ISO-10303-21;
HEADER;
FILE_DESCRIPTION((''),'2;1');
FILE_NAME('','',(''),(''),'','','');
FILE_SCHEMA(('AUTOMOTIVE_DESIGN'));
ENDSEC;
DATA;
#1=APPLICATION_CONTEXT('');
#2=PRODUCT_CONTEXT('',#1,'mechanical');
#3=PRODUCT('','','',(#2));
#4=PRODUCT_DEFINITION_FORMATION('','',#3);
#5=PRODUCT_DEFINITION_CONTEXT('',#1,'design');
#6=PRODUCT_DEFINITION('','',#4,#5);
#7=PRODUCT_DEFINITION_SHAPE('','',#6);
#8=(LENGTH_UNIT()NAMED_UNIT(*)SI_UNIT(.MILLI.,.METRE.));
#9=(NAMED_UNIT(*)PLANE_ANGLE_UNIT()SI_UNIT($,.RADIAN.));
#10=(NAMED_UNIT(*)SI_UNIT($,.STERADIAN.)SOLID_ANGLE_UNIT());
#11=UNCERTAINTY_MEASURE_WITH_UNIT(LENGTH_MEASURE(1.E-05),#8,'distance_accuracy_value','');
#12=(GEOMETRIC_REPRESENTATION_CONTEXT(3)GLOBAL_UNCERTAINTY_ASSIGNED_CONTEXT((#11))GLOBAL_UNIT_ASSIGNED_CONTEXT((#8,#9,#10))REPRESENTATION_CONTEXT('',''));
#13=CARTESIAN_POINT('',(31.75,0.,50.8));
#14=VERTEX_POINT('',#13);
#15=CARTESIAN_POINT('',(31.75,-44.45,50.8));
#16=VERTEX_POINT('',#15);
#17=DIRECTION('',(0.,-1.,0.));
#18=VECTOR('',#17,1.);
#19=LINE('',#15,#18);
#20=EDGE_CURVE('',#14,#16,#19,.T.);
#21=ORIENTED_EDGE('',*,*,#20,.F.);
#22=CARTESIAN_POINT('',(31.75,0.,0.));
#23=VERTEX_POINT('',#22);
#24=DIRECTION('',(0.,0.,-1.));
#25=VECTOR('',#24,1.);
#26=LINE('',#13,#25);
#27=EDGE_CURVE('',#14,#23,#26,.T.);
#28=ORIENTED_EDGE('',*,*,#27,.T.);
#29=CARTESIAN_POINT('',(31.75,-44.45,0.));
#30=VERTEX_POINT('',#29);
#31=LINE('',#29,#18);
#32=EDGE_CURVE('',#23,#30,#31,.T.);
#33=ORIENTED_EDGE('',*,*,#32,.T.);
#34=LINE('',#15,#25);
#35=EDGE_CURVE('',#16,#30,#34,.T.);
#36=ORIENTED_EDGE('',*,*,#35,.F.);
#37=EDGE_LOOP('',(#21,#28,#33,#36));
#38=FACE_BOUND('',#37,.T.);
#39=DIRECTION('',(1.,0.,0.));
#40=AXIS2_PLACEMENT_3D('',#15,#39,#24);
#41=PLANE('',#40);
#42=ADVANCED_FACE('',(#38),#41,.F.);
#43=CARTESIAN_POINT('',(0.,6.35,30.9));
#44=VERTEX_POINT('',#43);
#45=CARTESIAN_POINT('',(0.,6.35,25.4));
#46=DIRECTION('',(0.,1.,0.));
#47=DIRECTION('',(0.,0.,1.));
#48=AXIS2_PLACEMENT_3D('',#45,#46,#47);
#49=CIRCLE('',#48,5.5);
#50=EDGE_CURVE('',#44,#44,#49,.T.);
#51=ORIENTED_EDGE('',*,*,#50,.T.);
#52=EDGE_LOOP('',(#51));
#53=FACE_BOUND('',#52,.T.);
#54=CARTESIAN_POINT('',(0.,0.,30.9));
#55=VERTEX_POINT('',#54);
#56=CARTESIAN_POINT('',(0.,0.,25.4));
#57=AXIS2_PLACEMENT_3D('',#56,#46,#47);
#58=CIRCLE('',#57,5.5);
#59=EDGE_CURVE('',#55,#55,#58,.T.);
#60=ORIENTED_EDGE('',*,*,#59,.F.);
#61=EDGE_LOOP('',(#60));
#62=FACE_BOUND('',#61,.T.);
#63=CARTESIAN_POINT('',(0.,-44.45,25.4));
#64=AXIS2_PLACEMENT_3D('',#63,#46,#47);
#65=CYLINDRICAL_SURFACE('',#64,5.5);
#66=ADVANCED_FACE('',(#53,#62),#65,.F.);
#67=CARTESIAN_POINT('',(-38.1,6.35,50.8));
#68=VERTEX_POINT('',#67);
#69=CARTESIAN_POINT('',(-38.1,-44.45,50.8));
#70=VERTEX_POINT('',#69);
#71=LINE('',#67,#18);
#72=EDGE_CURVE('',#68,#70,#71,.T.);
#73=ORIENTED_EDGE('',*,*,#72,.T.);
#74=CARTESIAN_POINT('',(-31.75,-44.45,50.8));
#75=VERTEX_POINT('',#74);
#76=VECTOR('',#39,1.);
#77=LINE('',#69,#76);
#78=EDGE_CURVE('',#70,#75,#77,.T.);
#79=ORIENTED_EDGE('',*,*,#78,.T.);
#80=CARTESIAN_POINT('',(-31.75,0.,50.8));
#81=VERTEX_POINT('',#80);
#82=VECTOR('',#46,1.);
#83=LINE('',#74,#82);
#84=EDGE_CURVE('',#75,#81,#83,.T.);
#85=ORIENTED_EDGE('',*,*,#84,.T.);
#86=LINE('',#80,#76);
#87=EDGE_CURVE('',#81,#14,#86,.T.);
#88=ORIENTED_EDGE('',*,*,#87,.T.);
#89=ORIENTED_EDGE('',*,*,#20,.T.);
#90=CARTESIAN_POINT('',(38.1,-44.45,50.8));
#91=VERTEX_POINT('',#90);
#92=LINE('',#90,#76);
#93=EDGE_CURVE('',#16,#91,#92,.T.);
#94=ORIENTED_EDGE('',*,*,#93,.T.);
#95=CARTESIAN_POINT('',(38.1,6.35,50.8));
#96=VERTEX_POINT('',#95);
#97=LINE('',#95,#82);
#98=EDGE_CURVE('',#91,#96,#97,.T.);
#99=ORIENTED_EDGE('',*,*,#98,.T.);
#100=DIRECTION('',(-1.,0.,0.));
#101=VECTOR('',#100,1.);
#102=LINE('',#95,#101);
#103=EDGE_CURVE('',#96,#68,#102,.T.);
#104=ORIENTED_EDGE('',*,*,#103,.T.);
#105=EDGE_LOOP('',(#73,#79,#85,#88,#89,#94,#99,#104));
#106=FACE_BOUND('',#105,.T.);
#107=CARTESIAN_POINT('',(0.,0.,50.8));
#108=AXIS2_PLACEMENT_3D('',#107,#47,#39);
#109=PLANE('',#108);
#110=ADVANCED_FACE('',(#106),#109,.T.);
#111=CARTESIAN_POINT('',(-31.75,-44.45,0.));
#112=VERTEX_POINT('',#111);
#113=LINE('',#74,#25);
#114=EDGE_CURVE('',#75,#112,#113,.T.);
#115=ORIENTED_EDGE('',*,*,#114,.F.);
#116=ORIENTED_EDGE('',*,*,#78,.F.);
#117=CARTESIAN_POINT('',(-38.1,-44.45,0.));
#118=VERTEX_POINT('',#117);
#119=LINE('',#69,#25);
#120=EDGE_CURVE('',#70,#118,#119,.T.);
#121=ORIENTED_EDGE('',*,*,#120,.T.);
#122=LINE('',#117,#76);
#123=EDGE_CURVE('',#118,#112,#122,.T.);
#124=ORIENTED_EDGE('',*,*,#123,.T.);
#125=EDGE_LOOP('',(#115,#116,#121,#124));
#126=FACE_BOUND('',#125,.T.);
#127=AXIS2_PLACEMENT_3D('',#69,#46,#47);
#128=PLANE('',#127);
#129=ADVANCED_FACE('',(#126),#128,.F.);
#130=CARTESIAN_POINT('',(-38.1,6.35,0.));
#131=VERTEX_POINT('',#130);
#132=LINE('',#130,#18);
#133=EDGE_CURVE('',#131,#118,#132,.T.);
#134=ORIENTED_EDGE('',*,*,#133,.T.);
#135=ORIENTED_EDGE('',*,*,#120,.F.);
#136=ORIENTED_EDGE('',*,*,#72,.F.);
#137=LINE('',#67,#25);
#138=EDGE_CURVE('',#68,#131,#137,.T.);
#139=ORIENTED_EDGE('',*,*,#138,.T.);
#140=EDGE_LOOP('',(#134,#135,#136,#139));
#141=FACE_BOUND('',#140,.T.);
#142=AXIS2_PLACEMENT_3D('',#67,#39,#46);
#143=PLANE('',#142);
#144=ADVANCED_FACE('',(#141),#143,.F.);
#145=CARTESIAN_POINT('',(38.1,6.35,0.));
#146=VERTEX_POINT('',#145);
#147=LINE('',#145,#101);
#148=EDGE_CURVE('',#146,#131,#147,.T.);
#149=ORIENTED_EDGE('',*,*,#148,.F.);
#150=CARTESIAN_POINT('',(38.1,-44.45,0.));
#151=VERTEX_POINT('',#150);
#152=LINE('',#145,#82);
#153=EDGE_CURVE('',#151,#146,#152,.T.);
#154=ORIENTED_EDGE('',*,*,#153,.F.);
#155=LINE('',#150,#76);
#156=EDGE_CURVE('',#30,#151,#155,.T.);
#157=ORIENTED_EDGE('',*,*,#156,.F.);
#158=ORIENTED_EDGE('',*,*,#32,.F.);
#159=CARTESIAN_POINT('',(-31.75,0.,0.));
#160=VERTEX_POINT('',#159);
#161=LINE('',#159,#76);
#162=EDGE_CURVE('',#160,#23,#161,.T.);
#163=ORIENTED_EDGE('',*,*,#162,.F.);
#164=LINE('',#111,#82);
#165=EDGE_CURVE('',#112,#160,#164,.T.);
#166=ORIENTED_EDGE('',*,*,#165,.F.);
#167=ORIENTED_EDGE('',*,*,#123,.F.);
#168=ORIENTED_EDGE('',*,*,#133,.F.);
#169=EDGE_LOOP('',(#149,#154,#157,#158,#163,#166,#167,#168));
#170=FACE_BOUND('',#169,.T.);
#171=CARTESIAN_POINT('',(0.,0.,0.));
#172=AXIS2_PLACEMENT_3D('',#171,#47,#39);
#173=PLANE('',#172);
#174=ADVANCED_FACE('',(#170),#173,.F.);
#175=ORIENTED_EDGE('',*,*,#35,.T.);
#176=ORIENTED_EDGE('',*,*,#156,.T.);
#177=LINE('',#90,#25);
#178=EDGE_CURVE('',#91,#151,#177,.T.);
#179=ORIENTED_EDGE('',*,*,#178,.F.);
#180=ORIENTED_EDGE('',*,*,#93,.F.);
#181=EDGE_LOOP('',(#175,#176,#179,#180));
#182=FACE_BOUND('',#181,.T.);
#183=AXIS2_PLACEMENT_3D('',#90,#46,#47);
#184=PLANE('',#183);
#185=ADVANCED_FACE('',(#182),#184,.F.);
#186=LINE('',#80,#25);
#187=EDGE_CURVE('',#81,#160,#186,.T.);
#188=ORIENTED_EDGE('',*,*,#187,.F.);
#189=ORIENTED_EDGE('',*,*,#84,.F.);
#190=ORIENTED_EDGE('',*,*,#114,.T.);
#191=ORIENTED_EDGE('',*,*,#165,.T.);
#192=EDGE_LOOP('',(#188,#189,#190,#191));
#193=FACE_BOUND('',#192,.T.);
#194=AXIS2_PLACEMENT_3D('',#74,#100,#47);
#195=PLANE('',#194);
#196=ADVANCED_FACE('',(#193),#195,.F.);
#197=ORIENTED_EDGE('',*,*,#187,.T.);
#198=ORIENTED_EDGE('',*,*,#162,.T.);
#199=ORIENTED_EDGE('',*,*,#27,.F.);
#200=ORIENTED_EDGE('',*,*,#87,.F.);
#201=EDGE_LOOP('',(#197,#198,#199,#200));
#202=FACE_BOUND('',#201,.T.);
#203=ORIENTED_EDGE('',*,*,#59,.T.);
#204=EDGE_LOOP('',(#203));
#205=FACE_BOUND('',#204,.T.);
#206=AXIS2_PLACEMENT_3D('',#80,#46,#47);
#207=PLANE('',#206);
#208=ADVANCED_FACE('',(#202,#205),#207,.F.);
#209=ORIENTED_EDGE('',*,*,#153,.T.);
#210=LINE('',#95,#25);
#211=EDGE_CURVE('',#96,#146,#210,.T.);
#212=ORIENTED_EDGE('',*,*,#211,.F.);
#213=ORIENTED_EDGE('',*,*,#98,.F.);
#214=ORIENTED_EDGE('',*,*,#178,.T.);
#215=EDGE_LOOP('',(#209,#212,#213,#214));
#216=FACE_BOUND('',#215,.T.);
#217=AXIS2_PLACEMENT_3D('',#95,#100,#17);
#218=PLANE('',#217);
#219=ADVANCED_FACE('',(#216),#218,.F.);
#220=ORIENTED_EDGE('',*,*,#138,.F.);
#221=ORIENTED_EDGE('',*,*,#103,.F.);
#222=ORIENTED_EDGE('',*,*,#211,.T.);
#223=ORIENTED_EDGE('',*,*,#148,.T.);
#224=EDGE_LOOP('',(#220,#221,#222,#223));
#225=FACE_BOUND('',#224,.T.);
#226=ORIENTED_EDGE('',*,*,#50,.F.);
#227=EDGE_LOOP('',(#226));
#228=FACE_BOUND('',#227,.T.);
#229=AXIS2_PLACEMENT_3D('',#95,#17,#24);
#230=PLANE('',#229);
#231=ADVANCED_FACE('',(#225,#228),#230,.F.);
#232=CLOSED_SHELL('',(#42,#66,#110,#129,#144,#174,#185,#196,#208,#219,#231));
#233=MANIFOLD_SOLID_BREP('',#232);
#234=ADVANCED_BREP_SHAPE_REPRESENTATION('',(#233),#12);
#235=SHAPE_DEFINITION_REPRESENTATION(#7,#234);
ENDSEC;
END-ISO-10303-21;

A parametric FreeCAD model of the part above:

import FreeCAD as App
import Part
import Sketcher

V = App.Vector
Q = App.Units.Quantity


def add_polygon(sketch, points):
    """Adds a closed chain of lines whose ends are joined by coincident constraints."""
    first, n = sketch.GeometryCount, len(points)
    for a, b in zip(points, points[1:] + points[:1]):
        sketch.addGeometry(Part.LineSegment(App.Vector(*a, 0), App.Vector(*b, 0)), False)
    for i in range(n):
        sketch.addConstraint(Sketcher.Constraint("Coincident", first + i, 2, first + (i + 1) % n, 1))

doc = App.newDocument("Part")
params = doc.addObject("Spreadsheet::Sheet", "Params")
for row, (alias, value) in enumerate([
    ("sketch1_width", "3 in"),
    ("sketch1_height", "2 in"),
    ("sketch1_width2", "2.5 in"),
    ("sketch1_height2", "1.75 in"),
    ("pad1_length", "2 in"),
    ("pocket1_length", "2 in"),
], start=1):
    params.set(f"A{row}", alias)
    params.set(f"B{row}", "=" + value)
    params.setAlias(f"B{row}", alias)

body = doc.addObject("PartDesign::Body", "Body")

sketch1 = body.newObject("Sketcher::SketchObject", "Sketch")
sketch1.AttachmentSupport = (doc.getObject("XY_Plane"), [""])
sketch1.MapMode = "FlatFace"
add_polygon(sketch1, [(38, 6), (-38, 6), (-38, -44), (-32, -44), (-32, 0), (32, 0), (32, -44), (38, -44)])
sketch1.addConstraint([
    Sketcher.Constraint("Horizontal", 0),
    Sketcher.Constraint("Vertical", 1),
    Sketcher.Constraint("Horizontal", 2),
    Sketcher.Constraint("Vertical", 3),
    Sketcher.Constraint("Horizontal", 4),
    Sketcher.Constraint("Vertical", 5),
    Sketcher.Constraint("Horizontal", 6),
    Sketcher.Constraint("Vertical", 7),
    Sketcher.Constraint("Symmetric", 3, 2, 4, 2, -1, 1),
    Sketcher.Constraint("Symmetric", 1, 2, 6, 2, -2),
    Sketcher.Constraint("DistanceX", 0, 2, 0, 1, Q("3 in")),
    Sketcher.Constraint("DistanceY", 1, 2, 1, 1, Q("2 in")),
    Sketcher.Constraint("DistanceX", 4, 1, 4, 2, Q("2.5 in")),
    Sketcher.Constraint("DistanceY", 3, 1, 3, 2, Q("1.75 in")),
])
sketch1.setExpression("Constraints[18]", "Params.sketch1_width")
sketch1.setExpression("Constraints[19]", "Params.sketch1_height")
sketch1.setExpression("Constraints[20]", "Params.sketch1_width2")
sketch1.setExpression("Constraints[21]", "Params.sketch1_height2")
pad1 = body.newObject("PartDesign::Pad", "Pad")
pad1.Profile = sketch1
pad1.setExpression("Length", "Params.pad1_length")

sketch2 = body.newObject("Sketcher::SketchObject", "Sketch001")
sketch2.AttachmentSupport = (doc.getObject("XZ_Plane"), [""])
sketch2.MapMode = "FlatFace"
sketch2.AttachmentOffset = App.Placement(V(0, 0, -0.25 * 25.4), App.Rotation())
sketch2.addGeometry(Part.Circle(V(0, 25, 0), V(0, 0, 1), 6), False)
sketch2.addConstraint([
    Sketcher.Constraint("PointOnObject", 0, 3, -2),
    Sketcher.Constraint("DistanceY", -1, 1, 0, 3, Q("1 in")),
    Sketcher.Constraint("Diameter", 0, Q("11 mm")),
])
pocket1 = body.newObject("PartDesign::Pocket", "Pocket")
pocket1.Profile = sketch2
pocket1.setExpression("Length", "Params.pocket1_length")
pocket1.Reversed = True

doc.recompute()
